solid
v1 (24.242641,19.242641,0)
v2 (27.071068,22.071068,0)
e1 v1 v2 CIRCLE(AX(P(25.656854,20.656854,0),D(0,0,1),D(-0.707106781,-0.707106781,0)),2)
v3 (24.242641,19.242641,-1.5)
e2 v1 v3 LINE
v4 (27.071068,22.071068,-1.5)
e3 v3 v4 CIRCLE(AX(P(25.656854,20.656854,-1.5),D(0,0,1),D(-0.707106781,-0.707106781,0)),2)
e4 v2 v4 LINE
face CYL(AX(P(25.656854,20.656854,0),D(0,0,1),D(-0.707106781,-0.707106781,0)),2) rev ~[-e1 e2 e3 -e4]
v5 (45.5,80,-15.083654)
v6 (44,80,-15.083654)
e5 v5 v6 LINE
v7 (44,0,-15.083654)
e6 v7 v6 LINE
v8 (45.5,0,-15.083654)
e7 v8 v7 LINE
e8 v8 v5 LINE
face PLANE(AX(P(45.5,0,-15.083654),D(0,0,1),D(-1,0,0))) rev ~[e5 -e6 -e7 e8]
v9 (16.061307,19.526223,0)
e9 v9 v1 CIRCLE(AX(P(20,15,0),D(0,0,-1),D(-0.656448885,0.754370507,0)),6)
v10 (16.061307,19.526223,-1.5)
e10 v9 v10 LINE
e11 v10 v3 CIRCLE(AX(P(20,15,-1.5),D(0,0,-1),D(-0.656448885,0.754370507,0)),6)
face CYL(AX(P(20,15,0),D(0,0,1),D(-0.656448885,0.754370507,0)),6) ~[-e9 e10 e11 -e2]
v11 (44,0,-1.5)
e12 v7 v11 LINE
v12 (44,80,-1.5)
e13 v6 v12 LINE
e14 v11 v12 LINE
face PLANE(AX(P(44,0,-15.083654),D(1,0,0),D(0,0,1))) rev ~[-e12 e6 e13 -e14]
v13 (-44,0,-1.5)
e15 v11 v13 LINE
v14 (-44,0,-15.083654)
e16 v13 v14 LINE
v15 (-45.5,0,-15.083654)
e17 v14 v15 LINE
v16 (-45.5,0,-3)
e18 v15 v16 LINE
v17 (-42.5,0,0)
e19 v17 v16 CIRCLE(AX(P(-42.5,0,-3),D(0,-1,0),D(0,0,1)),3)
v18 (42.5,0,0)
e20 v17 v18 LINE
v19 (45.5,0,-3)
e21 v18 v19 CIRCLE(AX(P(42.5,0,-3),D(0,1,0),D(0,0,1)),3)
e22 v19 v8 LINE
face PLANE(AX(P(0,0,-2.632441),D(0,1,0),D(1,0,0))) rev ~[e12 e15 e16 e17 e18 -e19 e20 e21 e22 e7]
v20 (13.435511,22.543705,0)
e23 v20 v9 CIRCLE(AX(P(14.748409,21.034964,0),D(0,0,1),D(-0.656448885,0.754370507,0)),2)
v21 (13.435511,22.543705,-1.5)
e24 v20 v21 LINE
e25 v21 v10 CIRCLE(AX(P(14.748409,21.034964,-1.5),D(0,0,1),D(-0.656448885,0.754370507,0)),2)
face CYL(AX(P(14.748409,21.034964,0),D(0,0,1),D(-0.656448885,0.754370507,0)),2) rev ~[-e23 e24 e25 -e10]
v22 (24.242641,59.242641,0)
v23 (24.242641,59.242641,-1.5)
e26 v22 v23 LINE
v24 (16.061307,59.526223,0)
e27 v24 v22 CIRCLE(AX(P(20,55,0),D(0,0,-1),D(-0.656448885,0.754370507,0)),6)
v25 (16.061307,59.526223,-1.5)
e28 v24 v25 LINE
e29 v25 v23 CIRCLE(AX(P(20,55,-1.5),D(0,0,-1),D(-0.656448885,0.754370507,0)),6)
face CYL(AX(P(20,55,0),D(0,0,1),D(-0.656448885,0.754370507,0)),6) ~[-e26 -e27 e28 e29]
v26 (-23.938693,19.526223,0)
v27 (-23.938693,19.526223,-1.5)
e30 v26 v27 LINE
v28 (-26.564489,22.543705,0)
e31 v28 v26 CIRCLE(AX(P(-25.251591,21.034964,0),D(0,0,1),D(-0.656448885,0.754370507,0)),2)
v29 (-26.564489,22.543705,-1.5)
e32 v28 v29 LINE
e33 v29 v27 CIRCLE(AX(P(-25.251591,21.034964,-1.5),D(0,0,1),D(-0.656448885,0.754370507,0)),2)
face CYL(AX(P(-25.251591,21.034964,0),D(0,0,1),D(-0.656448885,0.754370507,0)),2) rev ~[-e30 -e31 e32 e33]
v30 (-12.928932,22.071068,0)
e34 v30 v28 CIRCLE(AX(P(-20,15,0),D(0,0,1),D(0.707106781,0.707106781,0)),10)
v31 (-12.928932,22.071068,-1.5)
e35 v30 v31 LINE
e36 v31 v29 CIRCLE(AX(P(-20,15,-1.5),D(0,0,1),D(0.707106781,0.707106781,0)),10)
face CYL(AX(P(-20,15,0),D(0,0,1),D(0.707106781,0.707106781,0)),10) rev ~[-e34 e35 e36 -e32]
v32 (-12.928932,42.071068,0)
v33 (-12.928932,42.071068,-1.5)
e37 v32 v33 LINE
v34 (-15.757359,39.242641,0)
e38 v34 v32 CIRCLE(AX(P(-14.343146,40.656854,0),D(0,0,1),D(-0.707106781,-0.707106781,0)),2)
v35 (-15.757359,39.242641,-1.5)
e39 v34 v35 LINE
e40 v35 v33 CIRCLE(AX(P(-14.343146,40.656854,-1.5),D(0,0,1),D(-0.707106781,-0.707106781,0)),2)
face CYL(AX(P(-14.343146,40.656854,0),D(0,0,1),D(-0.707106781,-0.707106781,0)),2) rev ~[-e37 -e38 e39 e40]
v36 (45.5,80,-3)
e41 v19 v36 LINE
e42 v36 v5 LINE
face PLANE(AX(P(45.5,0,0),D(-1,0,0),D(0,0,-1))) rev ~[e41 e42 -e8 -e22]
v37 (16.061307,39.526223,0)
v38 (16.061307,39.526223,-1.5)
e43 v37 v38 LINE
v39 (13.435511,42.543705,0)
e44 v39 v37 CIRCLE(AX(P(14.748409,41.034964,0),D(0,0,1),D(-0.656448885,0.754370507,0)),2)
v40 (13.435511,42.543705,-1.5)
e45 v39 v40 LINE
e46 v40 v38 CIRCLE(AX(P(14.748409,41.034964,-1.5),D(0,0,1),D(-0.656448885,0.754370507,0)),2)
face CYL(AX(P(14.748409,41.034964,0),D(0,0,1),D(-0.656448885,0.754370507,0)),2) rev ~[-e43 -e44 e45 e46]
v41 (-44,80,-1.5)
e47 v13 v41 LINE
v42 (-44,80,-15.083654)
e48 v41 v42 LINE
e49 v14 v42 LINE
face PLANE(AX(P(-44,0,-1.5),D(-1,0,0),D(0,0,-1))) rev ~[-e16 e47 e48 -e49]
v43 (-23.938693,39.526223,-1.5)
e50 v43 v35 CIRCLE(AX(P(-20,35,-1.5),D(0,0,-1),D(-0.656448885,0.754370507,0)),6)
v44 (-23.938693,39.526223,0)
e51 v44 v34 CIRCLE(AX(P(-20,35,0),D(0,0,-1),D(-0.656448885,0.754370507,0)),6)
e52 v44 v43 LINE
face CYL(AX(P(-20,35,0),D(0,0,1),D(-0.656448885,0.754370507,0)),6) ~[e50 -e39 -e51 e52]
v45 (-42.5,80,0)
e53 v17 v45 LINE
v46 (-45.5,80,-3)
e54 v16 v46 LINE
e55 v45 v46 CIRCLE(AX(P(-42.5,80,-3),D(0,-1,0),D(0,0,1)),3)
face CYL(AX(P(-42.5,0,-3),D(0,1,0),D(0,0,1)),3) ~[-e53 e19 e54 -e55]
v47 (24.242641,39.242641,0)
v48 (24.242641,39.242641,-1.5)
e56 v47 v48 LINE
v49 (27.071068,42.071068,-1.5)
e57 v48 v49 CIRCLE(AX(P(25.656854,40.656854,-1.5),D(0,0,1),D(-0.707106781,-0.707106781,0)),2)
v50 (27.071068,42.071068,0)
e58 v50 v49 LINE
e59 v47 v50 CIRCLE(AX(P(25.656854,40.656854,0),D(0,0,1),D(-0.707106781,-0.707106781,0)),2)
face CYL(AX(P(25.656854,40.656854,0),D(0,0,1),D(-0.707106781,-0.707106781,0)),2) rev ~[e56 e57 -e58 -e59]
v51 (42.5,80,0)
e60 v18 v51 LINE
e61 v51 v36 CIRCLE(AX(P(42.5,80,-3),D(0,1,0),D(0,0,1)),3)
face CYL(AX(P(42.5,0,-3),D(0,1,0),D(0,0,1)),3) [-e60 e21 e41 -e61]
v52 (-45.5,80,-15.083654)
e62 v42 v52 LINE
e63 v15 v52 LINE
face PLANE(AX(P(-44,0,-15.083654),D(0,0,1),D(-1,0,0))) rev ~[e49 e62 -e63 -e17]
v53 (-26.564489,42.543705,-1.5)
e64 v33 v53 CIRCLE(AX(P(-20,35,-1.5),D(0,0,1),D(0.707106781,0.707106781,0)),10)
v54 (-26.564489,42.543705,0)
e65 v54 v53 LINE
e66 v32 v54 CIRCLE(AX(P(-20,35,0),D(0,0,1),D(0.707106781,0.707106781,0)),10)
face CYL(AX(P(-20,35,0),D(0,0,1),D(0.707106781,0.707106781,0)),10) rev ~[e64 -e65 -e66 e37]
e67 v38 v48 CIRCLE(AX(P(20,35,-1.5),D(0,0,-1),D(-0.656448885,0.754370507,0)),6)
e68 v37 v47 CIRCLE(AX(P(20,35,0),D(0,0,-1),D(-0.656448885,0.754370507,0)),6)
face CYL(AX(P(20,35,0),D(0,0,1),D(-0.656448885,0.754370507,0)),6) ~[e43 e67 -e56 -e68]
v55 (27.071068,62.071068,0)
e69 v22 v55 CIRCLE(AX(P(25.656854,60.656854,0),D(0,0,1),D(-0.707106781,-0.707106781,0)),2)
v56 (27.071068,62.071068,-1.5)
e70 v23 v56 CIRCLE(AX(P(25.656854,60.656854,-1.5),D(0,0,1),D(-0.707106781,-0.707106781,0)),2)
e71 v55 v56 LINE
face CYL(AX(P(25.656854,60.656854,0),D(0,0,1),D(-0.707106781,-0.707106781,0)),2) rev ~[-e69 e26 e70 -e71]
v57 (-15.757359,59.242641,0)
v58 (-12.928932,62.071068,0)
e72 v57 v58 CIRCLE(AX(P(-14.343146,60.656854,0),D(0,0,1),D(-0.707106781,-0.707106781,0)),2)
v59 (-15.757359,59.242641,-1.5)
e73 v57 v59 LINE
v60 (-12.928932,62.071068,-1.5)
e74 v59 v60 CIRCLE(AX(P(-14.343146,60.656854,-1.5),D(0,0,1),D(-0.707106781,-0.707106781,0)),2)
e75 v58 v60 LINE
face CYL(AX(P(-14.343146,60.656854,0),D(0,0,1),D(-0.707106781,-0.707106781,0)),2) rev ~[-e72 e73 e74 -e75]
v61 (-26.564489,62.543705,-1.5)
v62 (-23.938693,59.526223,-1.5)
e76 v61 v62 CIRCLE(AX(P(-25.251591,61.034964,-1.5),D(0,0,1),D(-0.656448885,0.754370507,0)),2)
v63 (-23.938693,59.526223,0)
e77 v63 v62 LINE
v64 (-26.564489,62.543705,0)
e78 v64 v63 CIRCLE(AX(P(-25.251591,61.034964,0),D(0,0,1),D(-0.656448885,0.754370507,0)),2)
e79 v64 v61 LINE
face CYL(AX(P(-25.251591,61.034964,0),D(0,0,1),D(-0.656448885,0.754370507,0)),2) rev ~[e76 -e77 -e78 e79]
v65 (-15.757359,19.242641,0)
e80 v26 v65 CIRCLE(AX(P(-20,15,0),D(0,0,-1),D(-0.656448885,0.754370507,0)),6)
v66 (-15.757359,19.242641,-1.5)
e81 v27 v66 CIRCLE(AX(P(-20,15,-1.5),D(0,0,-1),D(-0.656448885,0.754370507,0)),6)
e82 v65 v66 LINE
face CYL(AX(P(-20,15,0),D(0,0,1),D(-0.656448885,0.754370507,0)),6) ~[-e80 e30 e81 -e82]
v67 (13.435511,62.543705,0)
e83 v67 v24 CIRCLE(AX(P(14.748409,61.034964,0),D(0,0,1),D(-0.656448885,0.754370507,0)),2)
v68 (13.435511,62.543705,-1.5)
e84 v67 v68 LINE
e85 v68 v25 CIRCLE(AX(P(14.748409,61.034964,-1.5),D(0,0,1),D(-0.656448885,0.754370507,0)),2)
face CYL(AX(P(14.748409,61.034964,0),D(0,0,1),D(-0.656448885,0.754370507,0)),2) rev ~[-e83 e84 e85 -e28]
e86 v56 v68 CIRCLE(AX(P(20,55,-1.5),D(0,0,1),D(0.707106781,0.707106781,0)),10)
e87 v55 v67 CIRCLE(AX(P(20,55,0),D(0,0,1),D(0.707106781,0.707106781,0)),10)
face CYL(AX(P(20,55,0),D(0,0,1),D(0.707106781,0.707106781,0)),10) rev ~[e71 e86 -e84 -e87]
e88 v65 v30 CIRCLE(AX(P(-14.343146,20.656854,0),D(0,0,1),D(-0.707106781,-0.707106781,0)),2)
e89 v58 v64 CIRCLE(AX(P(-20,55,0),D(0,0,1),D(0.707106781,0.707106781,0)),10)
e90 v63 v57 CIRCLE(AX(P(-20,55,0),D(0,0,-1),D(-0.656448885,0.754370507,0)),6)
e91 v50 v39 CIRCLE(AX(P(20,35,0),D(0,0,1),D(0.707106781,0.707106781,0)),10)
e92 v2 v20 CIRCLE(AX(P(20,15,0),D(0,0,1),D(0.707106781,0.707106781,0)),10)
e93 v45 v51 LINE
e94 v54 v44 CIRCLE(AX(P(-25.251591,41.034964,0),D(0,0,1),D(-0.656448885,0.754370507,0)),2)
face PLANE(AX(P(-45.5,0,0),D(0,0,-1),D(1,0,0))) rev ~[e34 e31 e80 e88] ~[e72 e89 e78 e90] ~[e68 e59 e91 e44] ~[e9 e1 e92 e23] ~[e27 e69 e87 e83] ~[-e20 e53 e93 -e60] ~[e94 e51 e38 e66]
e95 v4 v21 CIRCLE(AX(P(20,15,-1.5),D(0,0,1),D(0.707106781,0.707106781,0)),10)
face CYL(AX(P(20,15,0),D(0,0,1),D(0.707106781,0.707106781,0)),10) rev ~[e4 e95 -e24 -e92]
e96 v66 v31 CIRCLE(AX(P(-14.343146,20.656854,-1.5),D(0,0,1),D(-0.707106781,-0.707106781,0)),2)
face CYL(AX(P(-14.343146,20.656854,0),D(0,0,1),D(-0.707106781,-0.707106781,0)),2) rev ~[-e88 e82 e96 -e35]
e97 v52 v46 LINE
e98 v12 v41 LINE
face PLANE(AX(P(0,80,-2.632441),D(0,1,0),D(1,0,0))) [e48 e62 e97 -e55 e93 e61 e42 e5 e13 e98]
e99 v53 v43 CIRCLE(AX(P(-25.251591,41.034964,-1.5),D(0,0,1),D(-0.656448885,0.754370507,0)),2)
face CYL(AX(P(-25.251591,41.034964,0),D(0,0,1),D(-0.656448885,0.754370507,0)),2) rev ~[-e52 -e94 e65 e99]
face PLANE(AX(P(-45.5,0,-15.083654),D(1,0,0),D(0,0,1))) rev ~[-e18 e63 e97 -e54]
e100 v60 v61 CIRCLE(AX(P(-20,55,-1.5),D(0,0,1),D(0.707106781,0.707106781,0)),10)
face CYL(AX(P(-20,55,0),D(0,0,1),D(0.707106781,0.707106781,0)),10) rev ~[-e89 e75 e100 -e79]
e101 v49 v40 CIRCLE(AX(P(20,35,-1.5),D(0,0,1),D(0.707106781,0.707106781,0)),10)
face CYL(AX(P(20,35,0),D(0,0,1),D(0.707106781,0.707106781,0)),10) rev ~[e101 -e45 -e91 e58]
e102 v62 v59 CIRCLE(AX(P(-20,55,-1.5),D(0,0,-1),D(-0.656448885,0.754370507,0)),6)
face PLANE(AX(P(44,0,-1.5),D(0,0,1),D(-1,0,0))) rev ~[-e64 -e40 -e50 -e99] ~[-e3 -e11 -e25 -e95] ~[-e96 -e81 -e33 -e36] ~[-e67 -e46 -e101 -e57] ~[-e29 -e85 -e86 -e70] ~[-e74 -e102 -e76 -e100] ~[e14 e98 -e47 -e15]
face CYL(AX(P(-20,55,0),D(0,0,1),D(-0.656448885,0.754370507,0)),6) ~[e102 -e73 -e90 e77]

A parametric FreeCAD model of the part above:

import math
import FreeCAD as App
import Part
import Sketcher

V = App.Vector
Q = App.Units.Quantity


def edges_at(feature, points):
    """Names of the edges that pass closest to the given points."""
    edges = feature.Shape.Edges
    near = lambda p: min(range(len(edges)), key=lambda i: edges[i].distToShape(Part.Vertex(*p))[0])
    return sorted({f"Edge{near(p) + 1}" for p in points})


def add_polygon(sketch, points):
    """Adds a closed chain of lines whose ends are joined by coincident constraints."""
    first, n = sketch.GeometryCount, len(points)
    for a, b in zip(points, points[1:] + points[:1]):
        sketch.addGeometry(Part.LineSegment(App.Vector(*a, 0), App.Vector(*b, 0)), False)
    for i in range(n):
        sketch.addConstraint(Sketcher.Constraint("Coincident", first + i, 2, first + (i + 1) % n, 1))

doc = App.newDocument("Part")
body = doc.addObject("PartDesign::Body", "Body")

# Sketch on XZ plane
sketch1 = doc.addObject("Sketcher::SketchObject", "Sketch")
body.addObject(sketch1)
sketch1.AttachmentSupport = (doc.XZ_Plane, [""])
sketch1.MapMode = "FlatFace"
add_polygon(sketch1, [(-45.5, 0), (45.5, 0), (45.5, -15.083654), (44, -15.083654), (44, -1.5), (-44, -1.5), (-44, -15.083654), (-45.5, -15.083654)])  # lines 0-7
sketch1.addConstraint([
    Sketcher.Constraint("Horizontal", 0),
    Sketcher.Constraint("Vertical", 1),
    Sketcher.Constraint("Horizontal", 2),
    Sketcher.Constraint("Vertical", 3),
    Sketcher.Constraint("Horizontal", 4),
    Sketcher.Constraint("Vertical", 5),
    Sketcher.Constraint("Horizontal", 6),
    Sketcher.Constraint("Vertical", 7),
    Sketcher.Constraint("Symmetric", 0, 2, 7, 2, -1, 1),
    Sketcher.Constraint("Symmetric", 2, 2, 5, 2, -2),
    Sketcher.Constraint("DistanceX", 0, 1, 0, 2, Q("91 mm")),
    Sketcher.Constraint("DistanceX", 4, 2, 4, 1, Q("88 mm")),
    Sketcher.Constraint("DistanceY", 3, 2, -1, 1, Q("1.5 mm")),
    Sketcher.Constraint("DistanceY", 1, 2, 1, 1, Q("15.083654 mm")),
])
pad1 = doc.addObject("PartDesign::Pad", "Pad")
body.addObject(pad1)
pad1.Profile = sketch1
pad1.Length = 80
pad1.Reversed = True
doc.recompute()

fillet = doc.addObject("PartDesign::Fillet", "Fillet")
body.addObject(fillet)
fillet.Base = (pad1, edges_at(pad1, [(45.5, 40, 0), (-45.5, 40, 0)]))
fillet.Radius = 3

# Sketch on XY plane
sketch2 = doc.addObject("Sketcher::SketchObject", "Sketch001")
body.addObject(sketch2)
sketch2.AttachmentSupport = (doc.XY_Plane, [""])
sketch2.MapMode = "FlatFace"
sketch2.addGeometry([
    Part.ArcOfCircle(Part.Circle(V(-20, 55, 0), V(0, 0, 1), 10), math.radians(45), math.radians(131.029604)),  # 0
    Part.ArcOfCircle(Part.Circle(V(-25.251591, 61.034964, 0), V(0, 0, 1), 2), math.radians(131.029604), math.radians(311.029604)),  # 1
    Part.ArcOfCircle(Part.Circle(V(-20, 55, 0), V(0, 0, 1), 6), math.radians(45), math.radians(131.029604)),  # 2
    Part.ArcOfCircle(Part.Circle(V(-14.343146, 60.656854, 0), V(0, 0, 1), 2), math.radians(-135), math.radians(45)),  # 3
    Part.ArcOfCircle(Part.Circle(V(20, 55, 0), V(0, 0, 1), 10), math.radians(45), math.radians(131.029604)),  # 4
    Part.ArcOfCircle(Part.Circle(V(14.748409, 61.034964, 0), V(0, 0, 1), 2), math.radians(131.029604), math.radians(311.029604)),  # 5
    Part.ArcOfCircle(Part.Circle(V(20, 55, 0), V(0, 0, 1), 6), math.radians(45), math.radians(131.029604)),  # 6
    Part.ArcOfCircle(Part.Circle(V(25.656854, 60.656854, 0), V(0, 0, 1), 2), math.radians(-135), math.radians(45)),  # 7
    Part.ArcOfCircle(Part.Circle(V(20, 35, 0), V(0, 0, 1), 10), math.radians(45), math.radians(131.029604)),  # 8
    Part.ArcOfCircle(Part.Circle(V(14.748409, 41.034964, 0), V(0, 0, 1), 2), math.radians(131.029604), math.radians(311.029604)),  # 9
    Part.ArcOfCircle(Part.Circle(V(20, 35, 0), V(0, 0, 1), 6), math.radians(45), math.radians(131.029604)),  # 10
    Part.ArcOfCircle(Part.Circle(V(25.656854, 40.656854, 0), V(0, 0, 1), 2), math.radians(-135), math.radians(45)),  # 11
    Part.ArcOfCircle(Part.Circle(V(20, 15, 0), V(0, 0, 1), 10), math.radians(45), math.radians(131.029604)),  # 12
    Part.ArcOfCircle(Part.Circle(V(14.748409, 21.034964, 0), V(0, 0, 1), 2), math.radians(131.029604), math.radians(311.029604)),  # 13
    Part.ArcOfCircle(Part.Circle(V(20, 15, 0), V(0, 0, 1), 6), math.radians(45), math.radians(131.029604)),  # 14
    Part.ArcOfCircle(Part.Circle(V(25.656854, 20.656854, 0), V(0, 0, 1), 2), math.radians(-135), math.radians(45)),  # 15
    Part.ArcOfCircle(Part.Circle(V(-20, 35, 0), V(0, 0, 1), 10), math.radians(45), math.radians(131.029604)),  # 16
    Part.ArcOfCircle(Part.Circle(V(-25.251591, 41.034964, 0), V(0, 0, 1), 2), math.radians(131.029604), math.radians(311.029604)),  # 17
    Part.ArcOfCircle(Part.Circle(V(-20, 35, 0), V(0, 0, 1), 6), math.radians(45), math.radians(131.029604)),  # 18
    Part.ArcOfCircle(Part.Circle(V(-14.343146, 40.656854, 0), V(0, 0, 1), 2), math.radians(-135), math.radians(45)),  # 19
    Part.ArcOfCircle(Part.Circle(V(-20, 15, 0), V(0, 0, 1), 10), math.radians(45), math.radians(131.029604)),  # 20
    Part.ArcOfCircle(Part.Circle(V(-25.251591, 21.034964, 0), V(0, 0, 1), 2), math.radians(131.029604), math.radians(311.029604)),  # 21
    Part.ArcOfCircle(Part.Circle(V(-20, 15, 0), V(0, 0, 1), 6), math.radians(45), math.radians(131.029604)),  # 22
    Part.ArcOfCircle(Part.Circle(V(-14.343146, 20.656854, 0), V(0, 0, 1), 2), math.radians(-135), math.radians(45)),  # 23
], False)
sketch2.addConstraint([
    Sketcher.Constraint("Tangent", 0, 2, 1, 1),
    Sketcher.Constraint("Tangent", 1, 2, 2, 2),
    Sketcher.Constraint("Tangent", 2, 1, 3, 1),
    Sketcher.Constraint("Tangent", 3, 2, 0, 1),
    Sketcher.Constraint("Tangent", 4, 2, 5, 1),
    Sketcher.Constraint("Tangent", 5, 2, 6, 2),
    Sketcher.Constraint("Tangent", 6, 1, 7, 1),
    Sketcher.Constraint("Tangent", 7, 2, 4, 1),
    Sketcher.Constraint("Tangent", 8, 2, 9, 1),
    Sketcher.Constraint("Tangent", 9, 2, 10, 2),
    Sketcher.Constraint("Tangent", 10, 1, 11, 1),
    Sketcher.Constraint("Tangent", 11, 2, 8, 1),
    Sketcher.Constraint("Tangent", 12, 2, 13, 1),
    Sketcher.Constraint("Tangent", 13, 2, 14, 2),
    Sketcher.Constraint("Tangent", 14, 1, 15, 1),
    Sketcher.Constraint("Tangent", 15, 2, 12, 1),
    Sketcher.Constraint("Tangent", 16, 2, 17, 1),
    Sketcher.Constraint("Tangent", 17, 2, 18, 2),
    Sketcher.Constraint("Tangent", 18, 1, 19, 1),
    Sketcher.Constraint("Tangent", 19, 2, 16, 1),
    Sketcher.Constraint("Tangent", 20, 2, 21, 1),
    Sketcher.Constraint("Tangent", 21, 2, 22, 2),
    Sketcher.Constraint("Tangent", 22, 1, 23, 1),
    Sketcher.Constraint("Tangent", 23, 2, 20, 1),
    Sketcher.Constraint("Coincident", 2, 3, 0, 3),
    Sketcher.Constraint("Coincident", 6, 3, 4, 3),
    Sketcher.Constraint("Coincident", 10, 3, 8, 3),
    Sketcher.Constraint("Coincident", 14, 3, 12, 3),
    Sketcher.Constraint("Coincident", 18, 3, 16, 3),
    Sketcher.Constraint("Coincident", 22, 3, 20, 3),
    Sketcher.Constraint("Equal", 0, 4),
    Sketcher.Constraint("Equal", 3, 5),
    Sketcher.Constraint("Equal", 4, 8),
    Sketcher.Constraint("Equal", 7, 9),
    Sketcher.Constraint("Equal", 8, 12),
    Sketcher.Constraint("Equal", 11, 13),
    Sketcher.Constraint("Equal", 12, 16),
    Sketcher.Constraint("Equal", 15, 17),
    Sketcher.Constraint("Equal", 16, 20),
    Sketcher.Constraint("Equal", 19, 21),
    Sketcher.Constraint("Symmetric", 0, 3, 4, 3, -2),
    Sketcher.Constraint("Symmetric", 8, 3, 16, 3, -2),
    Sketcher.Constraint("Symmetric", 12, 3, 20, 3, -2),
    Sketcher.Constraint("Horizontal", 1, 3, 5, 3),
    Sketcher.Constraint("Horizontal", 3, 3, 7, 3),
    Sketcher.Constraint("Horizontal", 9, 3, 17, 3),
    Sketcher.Constraint("Horizontal", 11, 3, 19, 3),
    Sketcher.Constraint("Horizontal", 13, 3, 21, 3),
    Sketcher.Constraint("Horizontal", 15, 3, 23, 3),
    Sketcher.Constraint("Vertical", 6, 3, 8, 3),
    Sketcher.Constraint("Vertical", 5, 3, 9, 3),
    Sketcher.Constraint("Vertical", 7, 3, 11, 3),
    Sketcher.Constraint("Vertical", 10, 3, 12, 3),
    Sketcher.Constraint("Vertical", 9, 3, 13, 3),
    Sketcher.Constraint("Vertical", 11, 3, 15, 3),
    Sketcher.Constraint("Radius", 0, Q("10 mm")),
    Sketcher.Constraint("Radius", 1, Q("2 mm")),
    Sketcher.Constraint("DistanceX", 0, 3, -1, 1, Q("20 mm")),
    Sketcher.Constraint("DistanceY", -1, 1, 0, 3, Q("55 mm")),
    Sketcher.Constraint("DistanceY", -1, 1, 8, 3, Q("35 mm")),
    Sketcher.Constraint("DistanceY", -1, 1, 12, 3, Q("15 mm")),
    Sketcher.Constraint("DistanceX", 1, 3, -1, 1, Q("25.251591 mm")),
    Sketcher.Constraint("DistanceX", 2, 1, -1, 1, Q("15.757359 mm")),
])
pocket1 = doc.addObject("PartDesign::Pocket", "Pocket")
body.addObject(pocket1)
pocket1.Profile = sketch2
pocket1.Length = 1.5

doc.recompute()
